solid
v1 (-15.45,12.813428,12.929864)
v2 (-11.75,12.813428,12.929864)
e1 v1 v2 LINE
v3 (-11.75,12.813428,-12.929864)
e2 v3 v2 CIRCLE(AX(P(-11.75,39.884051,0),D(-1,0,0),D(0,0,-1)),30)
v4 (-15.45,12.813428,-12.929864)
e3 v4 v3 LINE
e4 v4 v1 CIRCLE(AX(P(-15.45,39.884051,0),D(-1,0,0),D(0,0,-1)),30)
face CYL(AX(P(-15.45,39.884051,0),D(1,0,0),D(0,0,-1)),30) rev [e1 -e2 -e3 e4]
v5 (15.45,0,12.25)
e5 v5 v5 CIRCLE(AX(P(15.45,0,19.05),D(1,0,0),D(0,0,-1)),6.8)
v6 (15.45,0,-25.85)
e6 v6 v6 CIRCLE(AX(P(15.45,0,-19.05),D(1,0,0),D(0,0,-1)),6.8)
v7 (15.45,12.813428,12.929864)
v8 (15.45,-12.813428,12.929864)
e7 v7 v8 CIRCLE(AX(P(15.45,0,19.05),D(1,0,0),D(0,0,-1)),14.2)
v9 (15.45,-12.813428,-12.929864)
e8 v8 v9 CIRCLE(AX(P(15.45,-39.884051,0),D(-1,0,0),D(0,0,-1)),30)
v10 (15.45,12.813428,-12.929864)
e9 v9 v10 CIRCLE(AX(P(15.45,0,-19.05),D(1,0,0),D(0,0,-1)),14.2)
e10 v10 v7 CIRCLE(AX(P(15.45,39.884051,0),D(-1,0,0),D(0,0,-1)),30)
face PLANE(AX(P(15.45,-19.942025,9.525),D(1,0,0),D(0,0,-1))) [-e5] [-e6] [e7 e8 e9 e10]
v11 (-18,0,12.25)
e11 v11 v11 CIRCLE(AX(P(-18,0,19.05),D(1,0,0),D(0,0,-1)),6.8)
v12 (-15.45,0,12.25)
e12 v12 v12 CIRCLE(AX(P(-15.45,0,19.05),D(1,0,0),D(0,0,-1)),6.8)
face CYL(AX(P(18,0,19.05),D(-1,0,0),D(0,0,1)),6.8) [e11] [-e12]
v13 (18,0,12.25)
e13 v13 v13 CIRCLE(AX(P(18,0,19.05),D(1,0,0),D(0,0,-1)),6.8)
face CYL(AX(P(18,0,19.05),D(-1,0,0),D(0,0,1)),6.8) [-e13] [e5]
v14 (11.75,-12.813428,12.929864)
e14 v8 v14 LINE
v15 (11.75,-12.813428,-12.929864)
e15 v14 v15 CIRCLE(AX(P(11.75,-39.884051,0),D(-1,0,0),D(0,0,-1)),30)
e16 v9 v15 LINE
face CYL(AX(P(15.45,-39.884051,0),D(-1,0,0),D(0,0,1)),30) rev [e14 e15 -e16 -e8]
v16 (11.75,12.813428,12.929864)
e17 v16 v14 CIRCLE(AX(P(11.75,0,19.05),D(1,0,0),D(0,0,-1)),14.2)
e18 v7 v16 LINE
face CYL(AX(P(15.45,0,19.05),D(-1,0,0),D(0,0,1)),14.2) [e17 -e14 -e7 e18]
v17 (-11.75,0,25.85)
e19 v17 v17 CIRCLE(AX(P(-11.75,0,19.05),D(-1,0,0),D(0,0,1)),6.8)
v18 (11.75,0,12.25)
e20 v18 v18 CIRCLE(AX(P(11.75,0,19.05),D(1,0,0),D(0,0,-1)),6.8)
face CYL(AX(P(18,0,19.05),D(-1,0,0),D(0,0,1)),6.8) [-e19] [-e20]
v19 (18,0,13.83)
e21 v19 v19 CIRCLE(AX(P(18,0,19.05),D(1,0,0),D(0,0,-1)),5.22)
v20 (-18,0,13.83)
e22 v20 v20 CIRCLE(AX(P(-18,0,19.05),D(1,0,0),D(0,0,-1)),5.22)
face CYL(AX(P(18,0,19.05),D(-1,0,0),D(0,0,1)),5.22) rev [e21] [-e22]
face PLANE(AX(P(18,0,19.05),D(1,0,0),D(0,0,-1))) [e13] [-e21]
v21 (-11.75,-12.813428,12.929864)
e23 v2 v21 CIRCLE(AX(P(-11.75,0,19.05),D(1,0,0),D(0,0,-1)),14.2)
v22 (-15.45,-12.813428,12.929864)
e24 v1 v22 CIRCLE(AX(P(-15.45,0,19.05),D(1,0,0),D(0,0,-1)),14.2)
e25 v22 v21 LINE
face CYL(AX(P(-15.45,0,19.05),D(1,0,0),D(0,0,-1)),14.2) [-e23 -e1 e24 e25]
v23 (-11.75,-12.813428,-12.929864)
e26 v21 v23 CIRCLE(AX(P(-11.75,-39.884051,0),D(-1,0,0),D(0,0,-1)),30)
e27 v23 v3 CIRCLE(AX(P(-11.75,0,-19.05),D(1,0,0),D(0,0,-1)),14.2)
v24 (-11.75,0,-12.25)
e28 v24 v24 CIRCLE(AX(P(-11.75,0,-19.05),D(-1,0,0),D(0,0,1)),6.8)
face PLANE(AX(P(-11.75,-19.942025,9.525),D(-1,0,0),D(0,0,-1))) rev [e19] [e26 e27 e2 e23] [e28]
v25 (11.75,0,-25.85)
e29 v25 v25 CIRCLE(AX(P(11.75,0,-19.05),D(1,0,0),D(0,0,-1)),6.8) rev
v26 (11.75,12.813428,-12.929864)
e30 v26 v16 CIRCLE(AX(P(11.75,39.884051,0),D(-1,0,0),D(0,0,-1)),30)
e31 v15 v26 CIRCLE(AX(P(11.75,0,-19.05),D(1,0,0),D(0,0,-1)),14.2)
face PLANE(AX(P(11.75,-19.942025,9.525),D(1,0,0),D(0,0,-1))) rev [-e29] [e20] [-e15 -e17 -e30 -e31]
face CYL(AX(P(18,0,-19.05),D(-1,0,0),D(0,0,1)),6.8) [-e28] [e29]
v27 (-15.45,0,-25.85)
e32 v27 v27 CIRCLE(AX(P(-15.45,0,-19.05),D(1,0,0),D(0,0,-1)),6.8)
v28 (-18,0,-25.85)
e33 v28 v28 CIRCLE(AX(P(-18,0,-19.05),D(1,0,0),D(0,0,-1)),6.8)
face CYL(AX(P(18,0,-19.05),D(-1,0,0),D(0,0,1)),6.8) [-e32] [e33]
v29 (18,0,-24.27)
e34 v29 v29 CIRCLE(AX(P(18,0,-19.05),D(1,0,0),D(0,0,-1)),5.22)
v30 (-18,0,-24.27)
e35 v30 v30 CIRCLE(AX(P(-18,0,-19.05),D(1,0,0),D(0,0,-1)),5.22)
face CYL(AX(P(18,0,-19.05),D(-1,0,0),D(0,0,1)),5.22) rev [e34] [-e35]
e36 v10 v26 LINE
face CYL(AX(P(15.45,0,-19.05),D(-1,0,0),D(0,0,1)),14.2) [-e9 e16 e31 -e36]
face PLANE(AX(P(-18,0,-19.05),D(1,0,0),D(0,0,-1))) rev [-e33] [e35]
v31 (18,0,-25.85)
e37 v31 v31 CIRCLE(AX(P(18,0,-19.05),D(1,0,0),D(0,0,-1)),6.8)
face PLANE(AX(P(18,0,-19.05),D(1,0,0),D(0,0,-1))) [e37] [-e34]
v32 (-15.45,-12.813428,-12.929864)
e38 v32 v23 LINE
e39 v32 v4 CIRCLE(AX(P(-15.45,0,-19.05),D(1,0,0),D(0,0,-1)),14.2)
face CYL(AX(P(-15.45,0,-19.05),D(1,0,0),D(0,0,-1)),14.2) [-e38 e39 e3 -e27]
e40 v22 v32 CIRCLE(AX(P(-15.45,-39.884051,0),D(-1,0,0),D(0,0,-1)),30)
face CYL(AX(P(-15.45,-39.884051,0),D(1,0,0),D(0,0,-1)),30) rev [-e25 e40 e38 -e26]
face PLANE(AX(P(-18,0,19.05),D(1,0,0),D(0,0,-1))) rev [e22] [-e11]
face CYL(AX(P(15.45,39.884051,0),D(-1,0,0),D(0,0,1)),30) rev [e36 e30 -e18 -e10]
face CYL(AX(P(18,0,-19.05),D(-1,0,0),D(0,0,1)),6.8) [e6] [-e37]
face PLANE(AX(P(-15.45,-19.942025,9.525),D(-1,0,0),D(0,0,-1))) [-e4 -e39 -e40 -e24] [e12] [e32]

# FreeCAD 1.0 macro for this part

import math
import FreeCAD as App
import Part
import Sketcher

V = App.Vector

doc = App.newDocument("Part")
params = doc.addObject("Spreadsheet::Sheet", "Params")
for row, (alias, value) in enumerate([
    ("sketch1_diameter", "13.6 mm"),
    ("sketch1_diameter2", "10.44 mm"),
    ("pad1_length", "36 mm"),
    ("sketch2_diameter", "13.6 mm"),
    ("sketch2_diameter2", "10.44 mm"),
    ("pad2_length", "36 mm"),
    ("sketch3_radius", "30 mm"),
    ("sketch3_diameter", "13.6 mm"),
    ("sketch3_radius2", "14.2 mm"),
    ("pad3_length", "3.7 mm"),
], start=1):
    params.set(f"A{row}", alias)
    params.set(f"B{row}", "=" + value)
    params.setAlias(f"B{row}", alias)

body = doc.addObject("PartDesign::Body", "Body")

sketch1 = body.newObject("Sketcher::SketchObject", "Sketch")
sketch1.AttachmentSupport = (doc.getObject("YZ_Plane"), [""])
sketch1.MapMode = "FlatFace"
sketch1.addGeometry([
    Part.Circle(V(0, 19, 0), V(0, 0, 1), 7),
    Part.Circle(V(0, 19, 0), V(0, 0, 1), 5),
], False)
sketch1.addConstraint([
    Sketcher.Constraint("Coincident", 1, 3, 0, 3),
    Sketcher.Constraint("PointOnObject", 0, 3, -2),
    Sketcher.Constraint("Diameter", 0, 13.6),
    Sketcher.Constraint("Diameter", 1, 10.44),
    Sketcher.Constraint("DistanceY", -1, 1, 0, 3, 19.05),
])
sketch1.setExpression("Constraints[2]", "Params.sketch1_diameter")
sketch1.setExpression("Constraints[3]", "Params.sketch1_diameter2")
pad1 = body.newObject("PartDesign::Pad", "Pad")
pad1.Profile = sketch1
pad1.setExpression("Length", "Params.pad1_length")
pad1.Midplane = True
body2 = doc.addObject("PartDesign::Body", "Body001")

sketch2 = body2.newObject("Sketcher::SketchObject", "Sketch001")
sketch2.AttachmentSupport = (doc.getObject("YZ_Plane001"), [""])
sketch2.MapMode = "FlatFace"
sketch2.addGeometry([
    Part.Circle(V(0, -19, 0), V(0, 0, 1), 7),
    Part.Circle(V(0, -19, 0), V(0, 0, 1), 5),
], False)
sketch2.addConstraint([
    Sketcher.Constraint("Coincident", 1, 3, 0, 3),
    Sketcher.Constraint("PointOnObject", 0, 3, -2),
    Sketcher.Constraint("Diameter", 0, 13.6),
    Sketcher.Constraint("Diameter", 1, 10.44),
    Sketcher.Constraint("DistanceY", 0, 3, -1, 1, 19.05),
])
sketch2.setExpression("Constraints[2]", "Params.sketch2_diameter")
sketch2.setExpression("Constraints[3]", "Params.sketch2_diameter2")
pad2 = body2.newObject("PartDesign::Pad", "Pad001")
pad2.Profile = sketch2
pad2.setExpression("Length", "Params.pad2_length")
pad2.Midplane = True
body.AllowCompound = True
doc.recompute()

boolean = body.newObject("PartDesign::Boolean", "Boolean")
boolean.Type = "Fuse"
boolean.addObjects([body2])

sketch3 = body.newObject("Sketcher::SketchObject", "Sketch002")
sketch3.AttachmentSupport = (doc.getObject("YZ_Plane"), [""])
sketch3.MapMode = "FlatFace"
sketch3.AttachmentOffset = App.Placement(V(0, 0, 15.45), App.Rotation())
sketch3.addGeometry([
    Part.ArcOfCircle(Part.Circle(V(0, 19, 0), V(0, 0, 1), 14), math.radians(-26), math.radians(206)),
    Part.ArcOfCircle(Part.Circle(V(-40, 0, 0), V(0, 0, 1), 30), math.radians(-26), math.radians(26)),
    Part.ArcOfCircle(Part.Circle(V(0, -19, 0), V(0, 0, 1), 14), math.radians(154), math.radians(386)),
    Part.ArcOfCircle(Part.Circle(V(40, 0, 0), V(0, 0, 1), 30), math.radians(154), math.radians(206)),
    Part.Circle(V(0, 19, 0), V(0, 0, 1), 7),
    Part.Circle(V(0, -19, 0), V(0, 0, 1), 7),
], False)
sketch3.addConstraint([
    Sketcher.Constraint("Tangent", 0, 2, 1, 2),
    Sketcher.Constraint("Tangent", 1, 1, 2, 1),
    Sketcher.Constraint("Tangent", 2, 2, 3, 2),
    Sketcher.Constraint("Tangent", 3, 1, 0, 1),
    Sketcher.Constraint("Coincident", 4, 3, 0, 3),
    Sketcher.Constraint("Coincident", 5, 3, 2, 3),
    Sketcher.Constraint("Equal", 0, 2),
    Sketcher.Constraint("Equal", 1, 3),
    Sketcher.Constraint("Equal", 4, 5),
    Sketcher.Constraint("Symmetric", 0, 3, 2, 3, -1, 1),
    Sketcher.Constraint("PointOnObject", 0, 3, -2),
    Sketcher.Constraint("Radius", 1, 30.0),
    Sketcher.Constraint("Diameter", 4, 13.6),
    Sketcher.Constraint("Radius", 0, 14.2),
    Sketcher.Constraint("DistanceY", 2, 3, 0, 3, 38.1),
])
sketch3.setExpression("Constraints[11]", "Params.sketch3_radius")
sketch3.setExpression("Constraints[12]", "Params.sketch3_diameter")
sketch3.setExpression("Constraints[13]", "Params.sketch3_radius2")
pad3 = body.newObject("PartDesign::Pad", "Pad002")
pad3.Profile = sketch3
pad3.setExpression("Length", "Params.pad3_length")
pad3.Reversed = True
doc.recompute()

mirrored = body.newObject("PartDesign::Mirrored", "Mirrored")
mirrored.Originals = [pad3]
mirrored.MirrorPlane = (doc.getObject("YZ_Plane"), [""])
body.Tip = mirrored

doc.recompute()
